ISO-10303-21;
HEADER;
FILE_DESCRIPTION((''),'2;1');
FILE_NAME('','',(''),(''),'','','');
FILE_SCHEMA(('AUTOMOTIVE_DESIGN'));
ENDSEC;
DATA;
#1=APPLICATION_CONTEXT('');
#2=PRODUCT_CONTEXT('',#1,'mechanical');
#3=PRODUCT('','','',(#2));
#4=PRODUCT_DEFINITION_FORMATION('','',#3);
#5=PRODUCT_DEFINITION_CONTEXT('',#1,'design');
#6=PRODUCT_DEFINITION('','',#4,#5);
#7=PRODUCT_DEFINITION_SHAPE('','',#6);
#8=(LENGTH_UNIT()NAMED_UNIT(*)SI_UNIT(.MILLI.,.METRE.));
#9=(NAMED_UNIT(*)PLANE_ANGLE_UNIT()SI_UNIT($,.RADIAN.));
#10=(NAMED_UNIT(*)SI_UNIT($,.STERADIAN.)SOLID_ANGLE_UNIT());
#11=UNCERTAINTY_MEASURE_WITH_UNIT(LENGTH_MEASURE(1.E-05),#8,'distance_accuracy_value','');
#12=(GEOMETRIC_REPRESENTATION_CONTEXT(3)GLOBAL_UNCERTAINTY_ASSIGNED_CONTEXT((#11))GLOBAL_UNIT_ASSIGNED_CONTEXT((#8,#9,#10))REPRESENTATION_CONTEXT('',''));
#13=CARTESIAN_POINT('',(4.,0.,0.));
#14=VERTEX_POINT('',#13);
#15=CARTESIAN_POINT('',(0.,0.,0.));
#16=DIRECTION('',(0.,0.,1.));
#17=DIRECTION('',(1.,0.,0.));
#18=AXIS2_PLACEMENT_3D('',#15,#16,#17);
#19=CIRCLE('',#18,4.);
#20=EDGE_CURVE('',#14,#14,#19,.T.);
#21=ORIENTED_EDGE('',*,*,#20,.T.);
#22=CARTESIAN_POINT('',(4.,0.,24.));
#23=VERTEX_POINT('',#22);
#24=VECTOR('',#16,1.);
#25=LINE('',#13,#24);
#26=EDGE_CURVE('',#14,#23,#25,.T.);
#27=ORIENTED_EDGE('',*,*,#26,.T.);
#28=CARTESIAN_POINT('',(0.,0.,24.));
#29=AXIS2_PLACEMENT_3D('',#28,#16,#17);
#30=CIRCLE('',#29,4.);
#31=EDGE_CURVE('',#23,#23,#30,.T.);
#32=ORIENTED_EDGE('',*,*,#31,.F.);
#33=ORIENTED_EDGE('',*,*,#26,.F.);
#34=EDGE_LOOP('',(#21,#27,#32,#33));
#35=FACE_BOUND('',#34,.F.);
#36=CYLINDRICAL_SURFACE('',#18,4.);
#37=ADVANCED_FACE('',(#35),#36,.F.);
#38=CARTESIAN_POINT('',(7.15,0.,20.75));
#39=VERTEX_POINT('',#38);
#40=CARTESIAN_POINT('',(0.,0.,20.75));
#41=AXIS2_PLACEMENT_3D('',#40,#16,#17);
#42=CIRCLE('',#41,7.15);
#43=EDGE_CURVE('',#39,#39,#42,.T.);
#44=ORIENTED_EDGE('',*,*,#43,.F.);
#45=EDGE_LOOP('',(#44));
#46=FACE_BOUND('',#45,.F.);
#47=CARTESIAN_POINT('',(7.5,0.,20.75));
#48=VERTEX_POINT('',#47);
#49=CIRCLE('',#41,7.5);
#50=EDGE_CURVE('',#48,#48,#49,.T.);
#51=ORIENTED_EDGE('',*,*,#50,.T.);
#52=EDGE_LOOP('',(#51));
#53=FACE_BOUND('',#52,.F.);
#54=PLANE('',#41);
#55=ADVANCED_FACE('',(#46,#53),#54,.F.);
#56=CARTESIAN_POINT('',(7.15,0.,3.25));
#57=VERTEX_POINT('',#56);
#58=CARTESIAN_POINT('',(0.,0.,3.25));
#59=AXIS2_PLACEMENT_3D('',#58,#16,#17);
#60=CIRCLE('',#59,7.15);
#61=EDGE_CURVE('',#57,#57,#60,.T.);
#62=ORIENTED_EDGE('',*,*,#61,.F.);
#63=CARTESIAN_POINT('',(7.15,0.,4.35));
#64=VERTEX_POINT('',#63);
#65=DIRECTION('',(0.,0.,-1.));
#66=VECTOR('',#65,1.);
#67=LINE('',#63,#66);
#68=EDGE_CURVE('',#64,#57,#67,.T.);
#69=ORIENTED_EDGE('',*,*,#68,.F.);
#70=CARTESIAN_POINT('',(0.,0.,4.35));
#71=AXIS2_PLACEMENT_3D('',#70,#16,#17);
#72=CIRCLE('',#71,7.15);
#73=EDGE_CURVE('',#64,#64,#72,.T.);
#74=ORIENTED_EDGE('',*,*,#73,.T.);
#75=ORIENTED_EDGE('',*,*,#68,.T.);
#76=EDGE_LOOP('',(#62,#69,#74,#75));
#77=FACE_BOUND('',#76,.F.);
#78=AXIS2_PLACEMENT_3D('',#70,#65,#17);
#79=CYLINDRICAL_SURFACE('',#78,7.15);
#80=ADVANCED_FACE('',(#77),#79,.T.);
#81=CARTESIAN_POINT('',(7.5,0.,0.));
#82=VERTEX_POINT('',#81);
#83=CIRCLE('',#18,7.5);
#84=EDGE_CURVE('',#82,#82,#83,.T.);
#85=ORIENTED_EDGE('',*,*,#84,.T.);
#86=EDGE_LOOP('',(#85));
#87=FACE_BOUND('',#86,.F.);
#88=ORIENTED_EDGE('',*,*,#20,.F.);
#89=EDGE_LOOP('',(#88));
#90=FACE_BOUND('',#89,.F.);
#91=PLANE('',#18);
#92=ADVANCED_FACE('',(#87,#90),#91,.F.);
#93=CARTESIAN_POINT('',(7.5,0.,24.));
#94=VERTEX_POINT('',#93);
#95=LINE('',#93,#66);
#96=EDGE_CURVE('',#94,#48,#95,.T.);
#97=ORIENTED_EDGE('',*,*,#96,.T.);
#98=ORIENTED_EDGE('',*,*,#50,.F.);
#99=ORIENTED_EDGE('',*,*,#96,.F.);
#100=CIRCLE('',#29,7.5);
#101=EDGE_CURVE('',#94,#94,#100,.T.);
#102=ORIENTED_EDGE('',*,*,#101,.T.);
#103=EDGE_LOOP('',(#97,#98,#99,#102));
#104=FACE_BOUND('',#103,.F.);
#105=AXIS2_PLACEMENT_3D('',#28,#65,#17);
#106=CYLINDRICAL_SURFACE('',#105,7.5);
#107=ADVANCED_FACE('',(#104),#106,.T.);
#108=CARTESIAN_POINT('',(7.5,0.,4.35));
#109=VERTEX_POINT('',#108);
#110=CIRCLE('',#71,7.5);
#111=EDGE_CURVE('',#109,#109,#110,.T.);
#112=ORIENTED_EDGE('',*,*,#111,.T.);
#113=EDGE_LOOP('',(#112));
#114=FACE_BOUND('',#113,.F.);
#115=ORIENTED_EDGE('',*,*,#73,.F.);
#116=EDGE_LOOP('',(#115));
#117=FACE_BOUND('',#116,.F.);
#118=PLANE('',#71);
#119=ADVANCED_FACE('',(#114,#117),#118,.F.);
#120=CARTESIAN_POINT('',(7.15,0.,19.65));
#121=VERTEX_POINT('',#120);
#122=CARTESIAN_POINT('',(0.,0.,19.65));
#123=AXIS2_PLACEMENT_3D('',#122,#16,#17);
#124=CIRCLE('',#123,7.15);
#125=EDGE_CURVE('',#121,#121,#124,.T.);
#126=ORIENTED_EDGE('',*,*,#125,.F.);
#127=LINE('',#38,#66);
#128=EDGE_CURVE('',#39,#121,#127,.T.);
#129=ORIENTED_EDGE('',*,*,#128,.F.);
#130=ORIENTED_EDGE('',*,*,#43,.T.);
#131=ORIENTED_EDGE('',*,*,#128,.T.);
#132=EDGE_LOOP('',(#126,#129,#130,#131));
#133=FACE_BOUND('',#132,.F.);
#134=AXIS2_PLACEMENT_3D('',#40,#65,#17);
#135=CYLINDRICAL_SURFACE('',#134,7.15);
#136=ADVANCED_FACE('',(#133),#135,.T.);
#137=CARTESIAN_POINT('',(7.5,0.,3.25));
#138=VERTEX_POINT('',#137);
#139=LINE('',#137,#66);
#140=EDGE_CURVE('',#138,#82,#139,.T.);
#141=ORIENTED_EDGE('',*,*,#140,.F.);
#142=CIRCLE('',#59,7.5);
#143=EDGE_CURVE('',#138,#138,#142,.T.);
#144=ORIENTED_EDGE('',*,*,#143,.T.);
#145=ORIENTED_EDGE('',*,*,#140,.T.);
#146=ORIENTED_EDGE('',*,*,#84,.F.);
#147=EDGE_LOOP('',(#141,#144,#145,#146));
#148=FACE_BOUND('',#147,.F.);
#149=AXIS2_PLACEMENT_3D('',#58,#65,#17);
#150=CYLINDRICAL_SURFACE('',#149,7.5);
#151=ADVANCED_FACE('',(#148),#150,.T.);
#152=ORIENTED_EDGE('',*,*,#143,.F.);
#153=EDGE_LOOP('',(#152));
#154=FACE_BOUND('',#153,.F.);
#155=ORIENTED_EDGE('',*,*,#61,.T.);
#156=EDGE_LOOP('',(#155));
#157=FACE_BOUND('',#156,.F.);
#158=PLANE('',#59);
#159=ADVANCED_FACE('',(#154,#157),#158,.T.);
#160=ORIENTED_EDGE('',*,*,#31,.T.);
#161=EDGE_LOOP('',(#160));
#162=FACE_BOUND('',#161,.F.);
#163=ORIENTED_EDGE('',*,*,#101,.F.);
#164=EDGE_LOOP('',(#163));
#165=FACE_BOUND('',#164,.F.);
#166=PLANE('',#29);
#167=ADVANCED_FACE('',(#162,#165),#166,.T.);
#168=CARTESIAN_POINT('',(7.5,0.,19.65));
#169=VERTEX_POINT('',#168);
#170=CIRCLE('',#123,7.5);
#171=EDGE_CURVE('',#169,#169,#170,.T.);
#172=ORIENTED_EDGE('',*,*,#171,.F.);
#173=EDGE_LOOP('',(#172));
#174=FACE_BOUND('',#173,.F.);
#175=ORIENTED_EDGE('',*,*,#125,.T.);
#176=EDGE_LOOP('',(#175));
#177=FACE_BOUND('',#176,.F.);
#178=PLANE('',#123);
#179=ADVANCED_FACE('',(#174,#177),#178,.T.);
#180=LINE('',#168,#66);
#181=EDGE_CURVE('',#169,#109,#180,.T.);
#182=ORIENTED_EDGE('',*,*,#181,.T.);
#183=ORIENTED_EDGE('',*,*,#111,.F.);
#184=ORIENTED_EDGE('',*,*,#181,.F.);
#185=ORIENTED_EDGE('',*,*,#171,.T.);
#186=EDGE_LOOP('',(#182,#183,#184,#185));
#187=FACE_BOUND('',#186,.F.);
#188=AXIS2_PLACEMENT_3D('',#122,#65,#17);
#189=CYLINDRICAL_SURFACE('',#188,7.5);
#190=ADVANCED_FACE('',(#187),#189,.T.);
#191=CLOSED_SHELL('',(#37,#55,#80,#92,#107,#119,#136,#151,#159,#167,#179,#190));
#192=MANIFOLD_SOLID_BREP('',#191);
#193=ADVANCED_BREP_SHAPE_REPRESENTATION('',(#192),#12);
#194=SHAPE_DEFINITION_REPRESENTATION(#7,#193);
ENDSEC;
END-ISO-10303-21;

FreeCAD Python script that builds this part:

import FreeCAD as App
import Part
import Sketcher

doc = App.newDocument("Part")
body = doc.addObject("PartDesign::Body", "Body")

# Sketch on XZ plane
sketch1 = body.newObject("Sketcher::SketchObject", "Sketch")
sketch1.AttachmentSupport = (doc.getObject("XZ_Plane"), [""])
sketch1.MapMode = "FlatFace"
sketch1.addGeometry([
    Part.LineSegment(App.Vector(7.5, 0, 0), App.Vector(4, 0, 0)),  # 0
    Part.LineSegment(App.Vector(4, 0, 0), App.Vector(4, 24, 0)),  # 1
    Part.LineSegment(App.Vector(4, 24, 0), App.Vector(7.5, 24, 0)),  # 2
    Part.LineSegment(App.Vector(7.5, 24, 0), App.Vector(7.5, 20.75, 0)),  # 3
    Part.LineSegment(App.Vector(7.5, 20.75, 0), App.Vector(7.15, 20.75, 0)),  # 4
    Part.LineSegment(App.Vector(7.15, 20.75, 0), App.Vector(7.15, 19.65, 0)),  # 5
    Part.LineSegment(App.Vector(7.15, 19.65, 0), App.Vector(7.5, 19.65, 0)),  # 6
    Part.LineSegment(App.Vector(7.5, 19.65, 0), App.Vector(7.5, 4.35, 0)),  # 7
    Part.LineSegment(App.Vector(7.5, 4.35, 0), App.Vector(7.15, 4.35, 0)),  # 8
    Part.LineSegment(App.Vector(7.15, 4.35, 0), App.Vector(7.15, 3.25, 0)),  # 9
    Part.LineSegment(App.Vector(7.15, 3.25, 0), App.Vector(7.5, 3.25, 0)),  # 10
    Part.LineSegment(App.Vector(7.5, 3.25, 0), App.Vector(7.5, 0, 0)),  # 11
], False)
sketch1.addConstraint([
    Sketcher.Constraint("Coincident", 0, 2, 1, 1),
    Sketcher.Constraint("Coincident", 1, 2, 2, 1),
    Sketcher.Constraint("Coincident", 2, 2, 3, 1),
    Sketcher.Constraint("Coincident", 3, 2, 4, 1),
    Sketcher.Constraint("Coincident", 4, 2, 5, 1),
    Sketcher.Constraint("Coincident", 5, 2, 6, 1),
    Sketcher.Constraint("Coincident", 6, 2, 7, 1),
    Sketcher.Constraint("Coincident", 7, 2, 8, 1),
    Sketcher.Constraint("Coincident", 8, 2, 9, 1),
    Sketcher.Constraint("Coincident", 9, 2, 10, 1),
    Sketcher.Constraint("Coincident", 10, 2, 11, 1),
    Sketcher.Constraint("Coincident", 11, 2, 0, 1),
    Sketcher.Constraint("Horizontal", 0),
    Sketcher.Constraint("Vertical", 1),
    Sketcher.Constraint("Horizontal", 2),
    Sketcher.Constraint("Vertical", 3),
    Sketcher.Constraint("Horizontal", 4),
    Sketcher.Constraint("Vertical", 5),
    Sketcher.Constraint("Horizontal", 6),
    Sketcher.Constraint("Vertical", 7),
    Sketcher.Constraint("Horizontal", 8),
    Sketcher.Constraint("Vertical", 9),
    Sketcher.Constraint("Horizontal", 10),
    Sketcher.Constraint("Vertical", 11),
    Sketcher.Constraint("PointOnObject", 0, 2, -1),
    Sketcher.Constraint("Vertical", 3, 2, 6, 2),
    Sketcher.Constraint("Vertical", 5, 2, 8, 2),
    Sketcher.Constraint("Vertical", 7, 2, 10, 2),
    Sketcher.Constraint("Equal", 5, 9),
    Sketcher.Constraint("Equal", 3, 11),
    Sketcher.Constraint("DistanceY", 1, 1, 1, 2, 24.0),
    Sketcher.Constraint("DistanceX", 0, 2, 0, 1, 3.5),
    Sketcher.Constraint("DistanceY", 5, 2, 5, 1, 1.1),
    Sketcher.Constraint("DistanceY", 7, 2, 7, 1, 15.3),
    Sketcher.Constraint("DistanceX", -1, 1, 0, 2, 4.0),
    Sketcher.Constraint("DistanceX", 4, 2, 4, 1, 0.35),
])
revolution = body.newObject("PartDesign::Revolution", "Revolution")
revolution.Profile = sketch1
revolution.ReferenceAxis = (sketch1, ["V_Axis"])
revolution.Angle = 360

doc.recompute()
